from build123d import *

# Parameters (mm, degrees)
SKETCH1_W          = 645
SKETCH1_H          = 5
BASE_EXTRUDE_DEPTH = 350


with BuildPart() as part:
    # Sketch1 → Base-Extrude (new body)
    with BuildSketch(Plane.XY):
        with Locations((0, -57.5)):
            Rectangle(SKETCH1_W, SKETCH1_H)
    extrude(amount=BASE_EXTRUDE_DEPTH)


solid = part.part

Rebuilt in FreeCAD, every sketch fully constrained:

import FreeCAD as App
import Part
import Sketcher
Q = App.Units.Quantity

doc = App.newDocument("Part")
body = doc.addObject("PartDesign::Body", "Body")

# Sketch on XY plane
sketch1 = body.newObject("Sketcher::SketchObject", "Sketch")
sketch1.AttachmentSupport = (doc.getObject("XY_Plane"), [""])
sketch1.MapMode = "FlatFace"
sketch1.addGeometry([
    Part.LineSegment(App.Vector(-322, -55, 0), App.Vector(-322, -60, 0)),
    Part.LineSegment(App.Vector(-322, -60, 0), App.Vector(322, -60, 0)),
    Part.LineSegment(App.Vector(322, -60, 0), App.Vector(322, -55, 0)),
    Part.LineSegment(App.Vector(322, -55, 0), App.Vector(-322, -55, 0)),
], False)
sketch1.addConstraint([
    Sketcher.Constraint("Coincident", 0, 2, 1, 1),
    Sketcher.Constraint("Coincident", 1, 2, 2, 1),
    Sketcher.Constraint("Coincident", 2, 2, 3, 1),
    Sketcher.Constraint("Coincident", 3, 2, 0, 1),
    Sketcher.Constraint("Vertical", 0),
    Sketcher.Constraint("Horizontal", 1),
    Sketcher.Constraint("Vertical", 2),
    Sketcher.Constraint("Horizontal", 3),
    Sketcher.Constraint("DistanceX", 1, 1, 1, 2, Q("645 mm")),
    Sketcher.Constraint("DistanceY", 0, 2, 0, 1, Q("5 mm")),
    Sketcher.Constraint("DistanceY", 0, 2, -1, 1, Q("60 mm")),
    Sketcher.Constraint("DistanceX", 0, 2, -1, 1, Q("322.5 mm")),
])
pad1 = body.newObject("PartDesign::Pad", "Pad")
pad1.Profile = sketch1
pad1.Length = 350

doc.recompute()
